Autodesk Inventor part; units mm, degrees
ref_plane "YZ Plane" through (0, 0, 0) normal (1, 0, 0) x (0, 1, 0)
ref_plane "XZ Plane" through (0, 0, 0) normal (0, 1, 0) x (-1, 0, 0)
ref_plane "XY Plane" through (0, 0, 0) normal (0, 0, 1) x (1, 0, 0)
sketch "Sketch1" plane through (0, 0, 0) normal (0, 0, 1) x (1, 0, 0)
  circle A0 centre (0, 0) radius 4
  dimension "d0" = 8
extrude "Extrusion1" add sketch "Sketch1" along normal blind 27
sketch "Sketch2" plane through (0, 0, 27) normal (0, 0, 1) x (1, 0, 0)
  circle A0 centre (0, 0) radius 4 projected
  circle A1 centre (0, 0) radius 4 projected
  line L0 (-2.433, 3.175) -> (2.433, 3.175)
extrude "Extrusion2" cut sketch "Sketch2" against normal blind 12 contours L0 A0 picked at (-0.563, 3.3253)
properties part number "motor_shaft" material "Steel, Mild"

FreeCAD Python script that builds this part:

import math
import FreeCAD as App
import Part
import Sketcher

V = App.Vector

doc = App.newDocument("Part")
body = doc.addObject("PartDesign::Body", "Body")

# Sketch on XY plane
sketch1 = body.newObject("Sketcher::SketchObject", "Sketch")
sketch1.AttachmentSupport = (doc.getObject("XY_Plane"), [""])
sketch1.MapMode = "FlatFace"
sketch1.addGeometry(Part.Circle(V(0, 0, 0), V(0, 0, 1), 4), False)
sketch1.addConstraint(Sketcher.Constraint("Coincident", 0, 3, -1, 1))
sketch1.addConstraint(Sketcher.Constraint("Diameter", 0, 8.0))
pad1 = body.newObject("PartDesign::Pad", "Pad")
pad1.Profile = sketch1
pad1.Length = 27

# Sketch on XY plane
sketch2 = body.newObject("Sketcher::SketchObject", "Sketch001")
sketch2.AttachmentSupport = (doc.getObject("XY_Plane"), [""])
sketch2.MapMode = "FlatFace"
sketch2.AttachmentOffset = App.Placement(V(0, 0, 27), App.Rotation())
sketch2.addGeometry(Part.LineSegment(V(-2.4, 3.2, 0), V(2.4, 3.2, 0)), False)
sketch2.addGeometry(Part.ArcOfCircle(Part.Circle(V(0, 0, 0), V(0, 0, 1), 4), math.radians(53), math.radians(127)), False)
sketch2.addConstraint(Sketcher.Constraint("Coincident", 0, 1, 1, 2))
sketch2.addConstraint(Sketcher.Constraint("Coincident", 1, 1, 0, 2))
sketch2.addConstraint(Sketcher.Constraint("Horizontal", 0))
sketch2.addConstraint(Sketcher.Constraint("Coincident", 1, 3, -1, 1))
sketch2.addConstraint(Sketcher.Constraint("Radius", 1, 4.0))
sketch2.addConstraint(Sketcher.Constraint("DistanceX", 0, 1, 0, 2, 4.866))
pocket1 = body.newObject("PartDesign::Pocket", "Pocket")
pocket1.Profile = sketch2
pocket1.Length = 12

doc.recompute()
